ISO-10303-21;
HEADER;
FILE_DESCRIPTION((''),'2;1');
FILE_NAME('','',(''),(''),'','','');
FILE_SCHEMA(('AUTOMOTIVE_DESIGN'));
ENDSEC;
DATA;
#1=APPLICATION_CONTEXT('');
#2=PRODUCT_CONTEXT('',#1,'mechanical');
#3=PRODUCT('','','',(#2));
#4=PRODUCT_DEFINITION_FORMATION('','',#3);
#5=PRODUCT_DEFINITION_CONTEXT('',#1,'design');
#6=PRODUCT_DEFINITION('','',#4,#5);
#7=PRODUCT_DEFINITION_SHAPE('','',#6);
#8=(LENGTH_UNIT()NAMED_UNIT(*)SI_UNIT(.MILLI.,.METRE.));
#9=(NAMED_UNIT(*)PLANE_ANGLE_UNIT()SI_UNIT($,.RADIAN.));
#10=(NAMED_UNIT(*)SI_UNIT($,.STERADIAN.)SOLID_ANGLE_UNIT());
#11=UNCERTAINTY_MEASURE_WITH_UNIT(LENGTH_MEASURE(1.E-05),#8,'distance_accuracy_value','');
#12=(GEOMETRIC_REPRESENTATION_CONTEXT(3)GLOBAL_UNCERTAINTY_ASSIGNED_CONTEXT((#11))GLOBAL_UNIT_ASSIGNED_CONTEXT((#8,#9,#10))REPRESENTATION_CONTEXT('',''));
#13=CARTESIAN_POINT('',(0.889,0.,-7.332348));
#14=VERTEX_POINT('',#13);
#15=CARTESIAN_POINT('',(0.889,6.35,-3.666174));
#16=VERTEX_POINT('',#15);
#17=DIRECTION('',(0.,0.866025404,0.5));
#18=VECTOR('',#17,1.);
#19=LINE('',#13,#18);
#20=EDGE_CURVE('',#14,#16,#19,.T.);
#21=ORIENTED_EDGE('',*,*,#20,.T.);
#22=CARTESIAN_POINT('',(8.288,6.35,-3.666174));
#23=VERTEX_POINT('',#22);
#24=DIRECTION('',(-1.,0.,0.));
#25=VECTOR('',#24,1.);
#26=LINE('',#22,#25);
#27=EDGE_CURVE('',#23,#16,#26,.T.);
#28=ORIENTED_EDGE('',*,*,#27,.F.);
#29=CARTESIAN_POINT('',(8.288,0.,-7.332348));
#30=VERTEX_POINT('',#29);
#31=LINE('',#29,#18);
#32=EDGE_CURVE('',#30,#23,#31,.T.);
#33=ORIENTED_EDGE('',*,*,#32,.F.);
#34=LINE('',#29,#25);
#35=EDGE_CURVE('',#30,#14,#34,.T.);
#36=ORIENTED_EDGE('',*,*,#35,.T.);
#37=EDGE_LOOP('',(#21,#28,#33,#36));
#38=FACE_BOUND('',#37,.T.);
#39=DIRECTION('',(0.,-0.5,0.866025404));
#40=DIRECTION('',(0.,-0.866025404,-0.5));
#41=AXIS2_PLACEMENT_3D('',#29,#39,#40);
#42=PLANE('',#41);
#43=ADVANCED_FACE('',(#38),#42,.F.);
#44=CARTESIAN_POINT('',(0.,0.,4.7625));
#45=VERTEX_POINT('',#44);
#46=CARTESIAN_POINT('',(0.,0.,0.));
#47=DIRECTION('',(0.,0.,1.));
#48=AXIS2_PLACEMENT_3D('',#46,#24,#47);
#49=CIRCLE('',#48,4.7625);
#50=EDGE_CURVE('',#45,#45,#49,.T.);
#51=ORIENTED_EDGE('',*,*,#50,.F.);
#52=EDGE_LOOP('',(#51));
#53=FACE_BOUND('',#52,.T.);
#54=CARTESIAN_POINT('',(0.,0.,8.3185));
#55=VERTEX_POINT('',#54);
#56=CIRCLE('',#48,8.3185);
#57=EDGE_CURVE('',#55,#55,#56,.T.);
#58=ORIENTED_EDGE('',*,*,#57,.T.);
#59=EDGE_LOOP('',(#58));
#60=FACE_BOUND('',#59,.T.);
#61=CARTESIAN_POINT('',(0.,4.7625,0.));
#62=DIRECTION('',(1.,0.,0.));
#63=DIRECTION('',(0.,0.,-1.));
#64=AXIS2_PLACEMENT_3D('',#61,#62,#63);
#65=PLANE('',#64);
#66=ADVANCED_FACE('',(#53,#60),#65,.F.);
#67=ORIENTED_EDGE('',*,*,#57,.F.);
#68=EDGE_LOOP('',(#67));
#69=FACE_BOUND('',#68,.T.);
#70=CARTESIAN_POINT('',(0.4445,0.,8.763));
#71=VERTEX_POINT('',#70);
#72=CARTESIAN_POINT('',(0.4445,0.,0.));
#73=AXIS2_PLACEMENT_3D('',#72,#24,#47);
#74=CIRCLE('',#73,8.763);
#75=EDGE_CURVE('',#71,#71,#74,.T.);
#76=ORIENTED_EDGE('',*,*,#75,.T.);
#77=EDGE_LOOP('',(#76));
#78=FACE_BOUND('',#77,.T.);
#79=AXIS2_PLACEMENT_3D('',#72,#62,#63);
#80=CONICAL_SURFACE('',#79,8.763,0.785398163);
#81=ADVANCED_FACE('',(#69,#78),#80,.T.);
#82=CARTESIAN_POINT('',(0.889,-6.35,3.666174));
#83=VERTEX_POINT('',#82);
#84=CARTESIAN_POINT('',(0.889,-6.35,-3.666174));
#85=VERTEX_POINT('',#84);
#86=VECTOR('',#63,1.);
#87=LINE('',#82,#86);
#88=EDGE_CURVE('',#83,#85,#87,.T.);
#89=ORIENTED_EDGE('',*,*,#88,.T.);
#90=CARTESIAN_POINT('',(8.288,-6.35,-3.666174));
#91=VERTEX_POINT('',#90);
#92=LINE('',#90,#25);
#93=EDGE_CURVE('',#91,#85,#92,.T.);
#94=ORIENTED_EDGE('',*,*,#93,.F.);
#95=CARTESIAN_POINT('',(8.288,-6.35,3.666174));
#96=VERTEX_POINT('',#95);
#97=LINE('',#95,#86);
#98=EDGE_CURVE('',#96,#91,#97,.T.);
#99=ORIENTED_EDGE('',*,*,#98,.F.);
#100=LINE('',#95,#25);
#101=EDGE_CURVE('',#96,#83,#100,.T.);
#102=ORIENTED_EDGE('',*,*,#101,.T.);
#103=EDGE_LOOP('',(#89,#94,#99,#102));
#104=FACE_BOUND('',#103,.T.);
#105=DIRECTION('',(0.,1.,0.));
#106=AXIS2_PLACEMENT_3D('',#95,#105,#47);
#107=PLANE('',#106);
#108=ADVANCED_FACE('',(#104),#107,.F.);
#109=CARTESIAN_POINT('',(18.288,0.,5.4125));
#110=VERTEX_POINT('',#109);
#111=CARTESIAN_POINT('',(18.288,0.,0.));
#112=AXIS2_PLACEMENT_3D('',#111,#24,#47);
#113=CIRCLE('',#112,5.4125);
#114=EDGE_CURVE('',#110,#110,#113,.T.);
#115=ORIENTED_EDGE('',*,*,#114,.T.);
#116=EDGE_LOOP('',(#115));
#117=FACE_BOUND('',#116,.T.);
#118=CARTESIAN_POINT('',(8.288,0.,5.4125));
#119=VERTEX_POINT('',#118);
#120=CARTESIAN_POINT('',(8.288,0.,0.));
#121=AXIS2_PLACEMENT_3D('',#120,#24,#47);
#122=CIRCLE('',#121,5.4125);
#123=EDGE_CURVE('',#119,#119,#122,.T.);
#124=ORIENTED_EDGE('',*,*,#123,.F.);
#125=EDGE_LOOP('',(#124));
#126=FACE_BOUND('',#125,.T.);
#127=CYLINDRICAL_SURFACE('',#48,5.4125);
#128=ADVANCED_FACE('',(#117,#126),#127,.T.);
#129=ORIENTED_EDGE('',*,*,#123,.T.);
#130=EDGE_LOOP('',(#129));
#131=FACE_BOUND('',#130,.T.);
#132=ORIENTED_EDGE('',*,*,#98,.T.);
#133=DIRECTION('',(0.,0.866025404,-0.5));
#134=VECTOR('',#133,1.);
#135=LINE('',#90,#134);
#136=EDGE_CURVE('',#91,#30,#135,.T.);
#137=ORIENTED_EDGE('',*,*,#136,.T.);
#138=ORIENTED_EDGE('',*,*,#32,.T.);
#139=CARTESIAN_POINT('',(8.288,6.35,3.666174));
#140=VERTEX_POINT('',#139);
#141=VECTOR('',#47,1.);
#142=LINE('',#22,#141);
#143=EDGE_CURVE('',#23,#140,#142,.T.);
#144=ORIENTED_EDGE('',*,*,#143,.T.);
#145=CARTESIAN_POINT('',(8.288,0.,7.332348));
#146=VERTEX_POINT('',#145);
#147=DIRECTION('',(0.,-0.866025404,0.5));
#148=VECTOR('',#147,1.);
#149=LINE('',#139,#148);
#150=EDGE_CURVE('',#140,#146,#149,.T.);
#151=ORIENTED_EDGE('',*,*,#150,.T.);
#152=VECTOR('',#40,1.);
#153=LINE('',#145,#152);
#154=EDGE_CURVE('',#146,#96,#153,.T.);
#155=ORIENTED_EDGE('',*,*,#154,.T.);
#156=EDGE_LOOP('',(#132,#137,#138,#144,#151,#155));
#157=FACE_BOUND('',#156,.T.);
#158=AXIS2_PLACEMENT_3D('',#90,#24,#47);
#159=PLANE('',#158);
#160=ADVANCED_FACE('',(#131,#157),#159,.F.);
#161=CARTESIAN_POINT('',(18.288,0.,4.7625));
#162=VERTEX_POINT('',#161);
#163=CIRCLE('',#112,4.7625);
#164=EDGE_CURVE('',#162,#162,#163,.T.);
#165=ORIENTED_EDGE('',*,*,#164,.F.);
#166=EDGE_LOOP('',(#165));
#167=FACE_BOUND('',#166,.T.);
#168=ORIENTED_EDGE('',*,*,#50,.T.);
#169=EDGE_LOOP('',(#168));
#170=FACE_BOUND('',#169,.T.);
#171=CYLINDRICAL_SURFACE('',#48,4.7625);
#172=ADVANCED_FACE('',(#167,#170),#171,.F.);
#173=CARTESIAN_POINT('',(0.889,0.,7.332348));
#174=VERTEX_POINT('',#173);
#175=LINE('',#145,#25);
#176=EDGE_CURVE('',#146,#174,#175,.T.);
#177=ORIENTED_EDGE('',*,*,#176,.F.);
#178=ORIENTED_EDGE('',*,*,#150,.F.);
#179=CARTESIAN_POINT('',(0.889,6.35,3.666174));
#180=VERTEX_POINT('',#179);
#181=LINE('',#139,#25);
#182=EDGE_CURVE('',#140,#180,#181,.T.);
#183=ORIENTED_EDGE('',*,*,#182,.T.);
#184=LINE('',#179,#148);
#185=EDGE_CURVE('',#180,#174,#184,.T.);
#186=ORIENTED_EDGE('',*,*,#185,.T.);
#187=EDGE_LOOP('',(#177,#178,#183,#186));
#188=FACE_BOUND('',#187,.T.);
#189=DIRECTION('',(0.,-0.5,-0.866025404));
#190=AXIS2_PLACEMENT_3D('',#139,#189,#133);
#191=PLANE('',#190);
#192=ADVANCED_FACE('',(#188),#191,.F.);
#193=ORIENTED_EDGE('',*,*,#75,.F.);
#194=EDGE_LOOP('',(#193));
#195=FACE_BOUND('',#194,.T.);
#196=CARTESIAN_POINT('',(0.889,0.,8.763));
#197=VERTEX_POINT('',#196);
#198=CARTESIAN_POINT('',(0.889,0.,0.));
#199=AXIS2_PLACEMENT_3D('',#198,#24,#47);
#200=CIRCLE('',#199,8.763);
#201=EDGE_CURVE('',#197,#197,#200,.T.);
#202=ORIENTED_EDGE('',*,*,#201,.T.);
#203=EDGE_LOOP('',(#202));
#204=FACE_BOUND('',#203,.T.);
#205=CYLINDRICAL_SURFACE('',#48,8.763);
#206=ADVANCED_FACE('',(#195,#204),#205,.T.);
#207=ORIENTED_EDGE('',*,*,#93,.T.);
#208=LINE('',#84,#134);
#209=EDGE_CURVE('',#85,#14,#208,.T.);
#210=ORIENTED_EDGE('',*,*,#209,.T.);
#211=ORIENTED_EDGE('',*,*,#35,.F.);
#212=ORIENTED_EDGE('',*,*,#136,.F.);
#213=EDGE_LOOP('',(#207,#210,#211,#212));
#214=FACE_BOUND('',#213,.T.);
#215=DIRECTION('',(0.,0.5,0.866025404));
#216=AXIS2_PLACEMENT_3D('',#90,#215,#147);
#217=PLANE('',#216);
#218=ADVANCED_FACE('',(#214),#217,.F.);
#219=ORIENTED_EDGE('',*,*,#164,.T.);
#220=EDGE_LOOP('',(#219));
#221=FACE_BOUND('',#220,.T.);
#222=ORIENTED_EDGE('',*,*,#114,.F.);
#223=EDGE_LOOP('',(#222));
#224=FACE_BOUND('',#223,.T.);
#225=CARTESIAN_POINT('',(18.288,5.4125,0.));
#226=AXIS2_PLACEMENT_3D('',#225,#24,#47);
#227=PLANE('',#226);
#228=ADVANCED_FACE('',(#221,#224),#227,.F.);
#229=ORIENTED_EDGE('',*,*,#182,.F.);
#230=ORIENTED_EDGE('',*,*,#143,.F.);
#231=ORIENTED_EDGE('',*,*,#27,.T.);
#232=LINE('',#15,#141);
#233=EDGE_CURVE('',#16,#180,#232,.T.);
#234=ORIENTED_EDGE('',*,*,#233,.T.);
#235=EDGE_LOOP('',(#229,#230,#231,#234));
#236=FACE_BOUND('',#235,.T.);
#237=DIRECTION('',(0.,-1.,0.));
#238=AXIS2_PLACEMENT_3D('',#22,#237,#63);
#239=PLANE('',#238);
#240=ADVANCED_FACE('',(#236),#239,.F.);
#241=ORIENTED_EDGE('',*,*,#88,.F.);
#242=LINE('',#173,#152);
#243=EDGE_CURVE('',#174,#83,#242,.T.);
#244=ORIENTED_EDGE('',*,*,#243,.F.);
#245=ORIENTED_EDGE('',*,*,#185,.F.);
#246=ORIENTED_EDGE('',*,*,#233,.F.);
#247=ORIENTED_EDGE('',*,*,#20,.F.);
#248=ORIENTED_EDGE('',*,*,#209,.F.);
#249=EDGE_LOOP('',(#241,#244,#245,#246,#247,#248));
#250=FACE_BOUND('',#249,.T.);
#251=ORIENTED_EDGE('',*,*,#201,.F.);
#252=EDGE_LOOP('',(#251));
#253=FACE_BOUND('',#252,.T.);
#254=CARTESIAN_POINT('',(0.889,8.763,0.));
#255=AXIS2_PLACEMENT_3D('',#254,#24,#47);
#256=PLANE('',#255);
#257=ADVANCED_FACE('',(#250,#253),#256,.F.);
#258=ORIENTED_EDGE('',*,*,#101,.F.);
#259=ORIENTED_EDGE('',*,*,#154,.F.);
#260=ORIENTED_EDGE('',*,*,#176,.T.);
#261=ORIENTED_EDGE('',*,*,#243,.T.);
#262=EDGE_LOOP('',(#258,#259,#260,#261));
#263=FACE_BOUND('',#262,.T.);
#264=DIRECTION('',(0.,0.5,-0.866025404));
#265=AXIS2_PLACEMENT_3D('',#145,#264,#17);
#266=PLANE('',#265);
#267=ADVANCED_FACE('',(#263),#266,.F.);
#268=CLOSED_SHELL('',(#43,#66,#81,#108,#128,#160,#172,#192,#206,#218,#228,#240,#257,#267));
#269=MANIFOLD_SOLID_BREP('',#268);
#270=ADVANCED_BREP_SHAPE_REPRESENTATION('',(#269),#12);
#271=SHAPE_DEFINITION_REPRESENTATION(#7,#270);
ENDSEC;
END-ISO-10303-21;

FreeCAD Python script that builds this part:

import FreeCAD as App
import Part
import Sketcher

V = App.Vector
Q = App.Units.Quantity

doc = App.newDocument("Part")
params = doc.addObject("Spreadsheet::Sheet", "Params")
for row, (alias, value) in enumerate([
    ("sketch1_width", "0.72 in"),
    ("sketch1_height", "0.14 in"),
    ("sketch1_width2", "0.685 in"),
    ("revolution_angle", "360 deg"),
    ("pad1_length", "7.399 mm"),
], start=1):
    params.set(f"A{row}", alias)
    params.set(f"B{row}", "=" + value)
    params.setAlias(f"B{row}", alias)

body = doc.addObject("PartDesign::Body", "Body")

# Sketch on XY plane
sketch1 = body.newObject("Sketcher::SketchObject", "Sketch")
sketch1.AttachmentSupport = (doc.getObject("XY_Plane"), [""])
sketch1.MapMode = "FlatFace"
sketch1.addGeometry([
    Part.LineSegment(V(0, 8.32, 0), V(0, 4.76, 0)),  # 0
    Part.LineSegment(V(0, 4.76, 0), V(18.29, 4.76, 0)),  # 1
    Part.LineSegment(V(18.29, 4.76, 0), V(18.29, 5.41, 0)),  # 2
    Part.LineSegment(V(18.29, 5.41, 0), V(0.89, 5.41, 0)),  # 3
    Part.LineSegment(V(0.89, 5.41, 0), V(0.89, 8.76, 0)),  # 4
    Part.LineSegment(V(0.89, 8.76, 0), V(0.44, 8.76, 0)),  # 5
    Part.LineSegment(V(0.44, 8.76, 0), V(0, 8.32, 0)),  # 6
], False)
sketch1.addConstraint([
    Sketcher.Constraint("Coincident", 0, 2, 1, 1),
    Sketcher.Constraint("Coincident", 1, 2, 2, 1),
    Sketcher.Constraint("Coincident", 2, 2, 3, 1),
    Sketcher.Constraint("Coincident", 3, 2, 4, 1),
    Sketcher.Constraint("Coincident", 4, 2, 5, 1),
    Sketcher.Constraint("Coincident", 5, 2, 6, 1),
    Sketcher.Constraint("Coincident", 6, 2, 0, 1),
    Sketcher.Constraint("Vertical", 0),
    Sketcher.Constraint("Horizontal", 1),
    Sketcher.Constraint("Vertical", 2),
    Sketcher.Constraint("Horizontal", 3),
    Sketcher.Constraint("Vertical", 4),
    Sketcher.Constraint("Horizontal", 5),
    Sketcher.Constraint("PointOnObject", 0, 2, -2),
    Sketcher.Constraint("Angle", 6, Q("-135 deg")),
    Sketcher.Constraint("DistanceX", 1, 1, 1, 2, Q("0.72 in")),
    Sketcher.Constraint("DistanceY", 0, 2, 0, 1, Q("0.14 in")),
    Sketcher.Constraint("DistanceX", 3, 2, 3, 1, Q("0.685 in")),
    Sketcher.Constraint("DistanceX", 5, 2, 5, 1, Q("0.0175 in")),
    Sketcher.Constraint("DistanceY", -1, 1, 0, 2, Q("0.1875 in")),
    Sketcher.Constraint("DistanceY", 2, 1, 2, 2, 0.65),
])
sketch1.setExpression("Constraints[15]", "Params.sketch1_width")
sketch1.setExpression("Constraints[16]", "Params.sketch1_height")
sketch1.setExpression("Constraints[17]", "Params.sketch1_width2")
revolution = body.newObject("PartDesign::Revolution", "Revolution")
revolution.Profile = sketch1
revolution.ReferenceAxis = (sketch1, ["H_Axis"])
revolution.setExpression("Angle", "Params.revolution_angle")

# Sketch on YZ plane
sketch2 = body.newObject("Sketcher::SketchObject", "Sketch001")
sketch2.AttachmentSupport = (doc.getObject("YZ_Plane"), [""])
sketch2.MapMode = "FlatFace"
sketch2.AttachmentOffset = App.Placement(V(0, 0, 8.288), App.Rotation())
sketch2.addGeometry([
    Part.LineSegment(V(0, -7, 0), V(6, -4, 0)),  # 0
    Part.LineSegment(V(6, -4, 0), V(6, 4, 0)),  # 1
    Part.LineSegment(V(6, 4, 0), V(0, 7, 0)),  # 2
    Part.LineSegment(V(0, 7, 0), V(-6, 4, 0)),  # 3
    Part.LineSegment(V(-6, 4, 0), V(-6, -4, 0)),  # 4
    Part.LineSegment(V(-6, -4, 0), V(0, -7, 0)),  # 5
    Part.Circle(V(0, 0, 0), V(0, 0, 1), 5),  # 6
], False)
sketch2.addConstraint([
    Sketcher.Constraint("Coincident", 0, 2, 1, 1),
    Sketcher.Constraint("Coincident", 1, 2, 2, 1),
    Sketcher.Constraint("Coincident", 2, 2, 3, 1),
    Sketcher.Constraint("Coincident", 3, 2, 4, 1),
    Sketcher.Constraint("Coincident", 4, 2, 5, 1),
    Sketcher.Constraint("Coincident", 5, 2, 0, 1),
    Sketcher.Constraint("Vertical", 1),
    Sketcher.Constraint("Vertical", 4),
    Sketcher.Constraint("Coincident", 6, 3, -1, 1),
    Sketcher.Constraint("Symmetric", 0, 2, 3, 2, -1, 1),
    Sketcher.Constraint("Symmetric", 2, 2, 5, 2, -1, 1),
    Sketcher.Constraint("PointOnObject", 2, 2, -2),
    Sketcher.Constraint("Parallel", 2, 5),
    Sketcher.Constraint("Horizontal", 1, 2, 3, 2),
    Sketcher.Constraint("Angle", 0, Q("30 deg")),
    Sketcher.Constraint("DistanceX", 3, 2, 1, 2, Q("0.5 in")),
    Sketcher.Constraint("Diameter", 6, 10.825),
    Sketcher.Constraint("DistanceY", 1, 1, 1, 2, 7.332348),
])
pad1 = body.newObject("PartDesign::Pad", "Pad")
pad1.Profile = sketch2
pad1.setExpression("Length", "Params.pad1_length")
pad1.Reversed = True

doc.recompute()
